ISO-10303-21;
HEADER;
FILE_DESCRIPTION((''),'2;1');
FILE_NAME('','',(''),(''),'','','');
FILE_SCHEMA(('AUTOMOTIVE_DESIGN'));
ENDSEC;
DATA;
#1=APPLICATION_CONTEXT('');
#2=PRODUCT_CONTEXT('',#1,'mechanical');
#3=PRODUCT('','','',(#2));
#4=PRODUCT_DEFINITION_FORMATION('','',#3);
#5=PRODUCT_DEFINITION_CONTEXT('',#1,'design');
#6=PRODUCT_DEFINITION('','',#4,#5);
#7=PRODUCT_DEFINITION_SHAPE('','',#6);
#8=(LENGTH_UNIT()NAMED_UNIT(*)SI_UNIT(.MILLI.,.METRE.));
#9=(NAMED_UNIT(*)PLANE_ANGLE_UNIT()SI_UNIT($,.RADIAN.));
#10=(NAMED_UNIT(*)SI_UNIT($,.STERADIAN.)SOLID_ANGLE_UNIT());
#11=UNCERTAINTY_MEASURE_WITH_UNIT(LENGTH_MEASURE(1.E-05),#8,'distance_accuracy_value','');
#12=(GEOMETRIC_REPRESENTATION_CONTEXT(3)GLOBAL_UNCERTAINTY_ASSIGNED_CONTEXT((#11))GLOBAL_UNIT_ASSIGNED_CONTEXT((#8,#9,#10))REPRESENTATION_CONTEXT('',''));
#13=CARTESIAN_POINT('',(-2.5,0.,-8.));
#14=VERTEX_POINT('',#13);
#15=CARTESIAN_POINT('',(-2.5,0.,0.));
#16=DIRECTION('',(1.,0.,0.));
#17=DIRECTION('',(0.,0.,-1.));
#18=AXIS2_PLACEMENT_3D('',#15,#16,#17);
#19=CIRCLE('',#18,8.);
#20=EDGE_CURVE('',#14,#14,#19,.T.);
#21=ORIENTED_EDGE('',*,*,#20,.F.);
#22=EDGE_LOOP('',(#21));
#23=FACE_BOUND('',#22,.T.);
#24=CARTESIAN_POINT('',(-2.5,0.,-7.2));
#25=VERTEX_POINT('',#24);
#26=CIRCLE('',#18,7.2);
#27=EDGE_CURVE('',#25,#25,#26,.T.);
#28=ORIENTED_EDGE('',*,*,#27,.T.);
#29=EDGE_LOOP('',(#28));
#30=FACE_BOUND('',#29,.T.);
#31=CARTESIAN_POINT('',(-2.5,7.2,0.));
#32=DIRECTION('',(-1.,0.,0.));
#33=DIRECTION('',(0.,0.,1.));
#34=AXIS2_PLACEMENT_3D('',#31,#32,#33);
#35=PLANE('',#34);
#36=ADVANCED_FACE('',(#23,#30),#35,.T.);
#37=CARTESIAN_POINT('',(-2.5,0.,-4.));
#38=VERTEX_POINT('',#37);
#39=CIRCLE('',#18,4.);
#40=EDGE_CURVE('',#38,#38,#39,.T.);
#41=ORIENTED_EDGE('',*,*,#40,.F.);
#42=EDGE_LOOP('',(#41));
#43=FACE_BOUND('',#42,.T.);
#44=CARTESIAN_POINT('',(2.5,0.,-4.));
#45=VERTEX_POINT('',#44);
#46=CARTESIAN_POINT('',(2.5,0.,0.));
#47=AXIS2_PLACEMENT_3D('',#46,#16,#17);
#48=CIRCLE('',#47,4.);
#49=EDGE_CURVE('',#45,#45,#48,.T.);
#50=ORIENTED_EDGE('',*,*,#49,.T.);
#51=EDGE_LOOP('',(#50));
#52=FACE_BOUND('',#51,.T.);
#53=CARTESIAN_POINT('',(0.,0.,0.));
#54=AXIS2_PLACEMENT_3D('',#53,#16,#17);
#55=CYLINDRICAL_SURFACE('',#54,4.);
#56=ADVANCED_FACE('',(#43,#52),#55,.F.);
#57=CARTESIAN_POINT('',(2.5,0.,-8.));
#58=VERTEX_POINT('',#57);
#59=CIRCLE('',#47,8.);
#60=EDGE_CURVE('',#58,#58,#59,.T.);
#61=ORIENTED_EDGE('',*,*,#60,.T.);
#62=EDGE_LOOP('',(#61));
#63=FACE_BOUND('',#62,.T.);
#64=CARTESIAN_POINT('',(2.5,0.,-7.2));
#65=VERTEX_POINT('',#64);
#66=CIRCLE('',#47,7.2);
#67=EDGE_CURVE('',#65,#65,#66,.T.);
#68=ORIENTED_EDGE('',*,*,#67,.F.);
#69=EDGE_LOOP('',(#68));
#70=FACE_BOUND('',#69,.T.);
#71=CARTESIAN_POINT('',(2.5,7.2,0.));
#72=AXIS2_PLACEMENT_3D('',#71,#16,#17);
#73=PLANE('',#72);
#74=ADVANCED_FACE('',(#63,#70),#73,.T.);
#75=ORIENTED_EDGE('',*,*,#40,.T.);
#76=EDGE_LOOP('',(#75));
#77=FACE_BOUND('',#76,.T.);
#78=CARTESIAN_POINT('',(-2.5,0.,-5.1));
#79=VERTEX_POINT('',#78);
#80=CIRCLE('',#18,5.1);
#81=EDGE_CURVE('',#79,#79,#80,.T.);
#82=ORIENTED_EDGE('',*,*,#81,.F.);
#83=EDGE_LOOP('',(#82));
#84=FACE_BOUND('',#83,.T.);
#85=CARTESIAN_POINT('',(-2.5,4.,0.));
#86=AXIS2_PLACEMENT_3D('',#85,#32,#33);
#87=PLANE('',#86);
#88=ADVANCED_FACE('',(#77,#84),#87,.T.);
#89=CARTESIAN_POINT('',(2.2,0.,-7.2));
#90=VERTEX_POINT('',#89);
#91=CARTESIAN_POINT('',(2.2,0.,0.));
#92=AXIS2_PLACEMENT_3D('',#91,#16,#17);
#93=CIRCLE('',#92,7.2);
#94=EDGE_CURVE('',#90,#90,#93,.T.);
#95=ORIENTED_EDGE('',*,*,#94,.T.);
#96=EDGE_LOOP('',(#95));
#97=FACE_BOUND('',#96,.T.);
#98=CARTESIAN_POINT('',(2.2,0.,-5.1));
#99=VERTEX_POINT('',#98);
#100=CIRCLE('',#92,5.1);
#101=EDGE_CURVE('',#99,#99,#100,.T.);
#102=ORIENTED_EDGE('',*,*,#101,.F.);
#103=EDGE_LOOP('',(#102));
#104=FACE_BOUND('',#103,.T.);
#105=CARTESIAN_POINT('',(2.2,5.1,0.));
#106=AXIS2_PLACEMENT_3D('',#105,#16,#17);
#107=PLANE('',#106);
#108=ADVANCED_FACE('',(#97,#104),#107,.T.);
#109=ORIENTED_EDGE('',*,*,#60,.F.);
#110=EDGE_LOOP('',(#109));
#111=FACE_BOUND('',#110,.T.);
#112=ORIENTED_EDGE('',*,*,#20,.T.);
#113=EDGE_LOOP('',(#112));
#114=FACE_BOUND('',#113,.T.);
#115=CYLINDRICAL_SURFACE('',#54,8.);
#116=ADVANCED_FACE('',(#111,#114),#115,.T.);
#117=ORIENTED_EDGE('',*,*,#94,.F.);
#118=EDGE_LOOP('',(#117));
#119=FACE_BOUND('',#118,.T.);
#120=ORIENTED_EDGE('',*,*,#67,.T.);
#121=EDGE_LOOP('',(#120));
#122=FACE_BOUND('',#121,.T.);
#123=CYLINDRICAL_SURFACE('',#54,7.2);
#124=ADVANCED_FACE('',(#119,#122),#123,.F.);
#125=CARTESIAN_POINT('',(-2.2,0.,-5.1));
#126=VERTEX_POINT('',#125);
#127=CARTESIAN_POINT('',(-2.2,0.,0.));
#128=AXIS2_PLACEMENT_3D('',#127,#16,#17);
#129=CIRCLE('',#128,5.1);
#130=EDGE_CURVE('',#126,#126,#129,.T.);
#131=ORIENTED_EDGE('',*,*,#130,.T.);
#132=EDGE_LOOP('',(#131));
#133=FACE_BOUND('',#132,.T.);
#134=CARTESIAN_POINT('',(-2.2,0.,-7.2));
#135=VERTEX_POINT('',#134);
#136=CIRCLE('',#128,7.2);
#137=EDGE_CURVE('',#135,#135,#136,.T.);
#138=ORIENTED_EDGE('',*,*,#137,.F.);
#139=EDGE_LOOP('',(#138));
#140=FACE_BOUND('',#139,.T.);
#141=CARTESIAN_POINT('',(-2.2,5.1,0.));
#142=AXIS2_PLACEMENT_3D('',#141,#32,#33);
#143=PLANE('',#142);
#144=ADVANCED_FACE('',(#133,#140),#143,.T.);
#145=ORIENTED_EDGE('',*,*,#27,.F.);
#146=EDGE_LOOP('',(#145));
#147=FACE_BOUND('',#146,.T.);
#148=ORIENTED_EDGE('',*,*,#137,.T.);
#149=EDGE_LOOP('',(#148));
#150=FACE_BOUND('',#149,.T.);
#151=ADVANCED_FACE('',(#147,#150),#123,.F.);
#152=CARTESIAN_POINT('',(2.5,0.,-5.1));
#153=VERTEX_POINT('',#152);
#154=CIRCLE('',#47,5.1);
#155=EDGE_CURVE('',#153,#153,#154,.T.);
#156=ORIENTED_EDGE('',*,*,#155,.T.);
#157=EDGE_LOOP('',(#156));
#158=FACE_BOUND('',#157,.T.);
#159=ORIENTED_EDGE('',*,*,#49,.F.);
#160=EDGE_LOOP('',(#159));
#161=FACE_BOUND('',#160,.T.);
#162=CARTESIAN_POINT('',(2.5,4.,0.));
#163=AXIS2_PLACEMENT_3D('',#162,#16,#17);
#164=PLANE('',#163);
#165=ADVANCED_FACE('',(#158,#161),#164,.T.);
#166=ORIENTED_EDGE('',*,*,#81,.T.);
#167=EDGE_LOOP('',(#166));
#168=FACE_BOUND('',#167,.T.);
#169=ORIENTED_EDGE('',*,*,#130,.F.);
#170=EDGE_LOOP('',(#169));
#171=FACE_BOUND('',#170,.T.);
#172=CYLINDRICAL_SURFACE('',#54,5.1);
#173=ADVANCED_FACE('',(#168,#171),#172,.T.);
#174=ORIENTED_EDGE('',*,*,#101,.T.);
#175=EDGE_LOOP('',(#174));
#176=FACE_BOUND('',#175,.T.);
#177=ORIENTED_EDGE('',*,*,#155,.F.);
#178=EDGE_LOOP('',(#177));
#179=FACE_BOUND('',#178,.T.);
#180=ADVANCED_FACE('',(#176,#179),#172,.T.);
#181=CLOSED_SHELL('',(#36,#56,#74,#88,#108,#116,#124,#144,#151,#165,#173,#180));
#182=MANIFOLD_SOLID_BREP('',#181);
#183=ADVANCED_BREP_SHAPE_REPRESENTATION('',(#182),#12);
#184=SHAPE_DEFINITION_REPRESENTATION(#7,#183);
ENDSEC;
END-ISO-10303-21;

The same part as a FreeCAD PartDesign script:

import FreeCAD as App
import Part
import Sketcher

doc = App.newDocument("Part")
body = doc.addObject("PartDesign::Body", "Body")

sketch1 = body.newObject("Sketcher::SketchObject", "Sketch")
sketch1.AttachmentSupport = (doc.getObject("XY_Plane"), [""])
sketch1.MapMode = "FlatFace"
sketch1.addGeometry(Part.LineSegment(App.Vector(-2.5, 4, 0), App.Vector(2.5, 4, 0)), False)
sketch1.addGeometry(Part.LineSegment(App.Vector(2.5, 4, 0), App.Vector(2.5, 5.1, 0)), False)
sketch1.addGeometry(Part.LineSegment(App.Vector(2.5, 5.1, 0), App.Vector(2.2, 5.1, 0)), False)
sketch1.addGeometry(Part.LineSegment(App.Vector(2.2, 5.1, 0), App.Vector(2.2, 7.2, 0)), False)
sketch1.addGeometry(Part.LineSegment(App.Vector(2.2, 7.2, 0), App.Vector(2.5, 7.2, 0)), False)
sketch1.addGeometry(Part.LineSegment(App.Vector(2.5, 7.2, 0), App.Vector(2.5, 8, 0)), False)
sketch1.addGeometry(Part.LineSegment(App.Vector(2.5, 8, 0), App.Vector(-2.5, 8, 0)), False)
sketch1.addGeometry(Part.LineSegment(App.Vector(-2.5, 8, 0), App.Vector(-2.5, 7.2, 0)), False)
sketch1.addGeometry(Part.LineSegment(App.Vector(-2.5, 7.2, 0), App.Vector(-2.2, 7.2, 0)), False)
sketch1.addGeometry(Part.LineSegment(App.Vector(-2.2, 7.2, 0), App.Vector(-2.2, 5.1, 0)), False)
sketch1.addGeometry(Part.LineSegment(App.Vector(-2.2, 5.1, 0), App.Vector(-2.5, 5.1, 0)), False)
sketch1.addGeometry(Part.LineSegment(App.Vector(-2.5, 5.1, 0), App.Vector(-2.5, 4, 0)), False)
sketch1.addConstraint(Sketcher.Constraint("Coincident", 0, 2, 1, 1))
sketch1.addConstraint(Sketcher.Constraint("Coincident", 1, 2, 2, 1))
sketch1.addConstraint(Sketcher.Constraint("Coincident", 2, 2, 3, 1))
sketch1.addConstraint(Sketcher.Constraint("Coincident", 3, 2, 4, 1))
sketch1.addConstraint(Sketcher.Constraint("Coincident", 4, 2, 5, 1))
sketch1.addConstraint(Sketcher.Constraint("Coincident", 5, 2, 6, 1))
sketch1.addConstraint(Sketcher.Constraint("Coincident", 6, 2, 7, 1))
sketch1.addConstraint(Sketcher.Constraint("Coincident", 7, 2, 8, 1))
sketch1.addConstraint(Sketcher.Constraint("Coincident", 8, 2, 9, 1))
sketch1.addConstraint(Sketcher.Constraint("Coincident", 9, 2, 10, 1))
sketch1.addConstraint(Sketcher.Constraint("Coincident", 10, 2, 11, 1))
sketch1.addConstraint(Sketcher.Constraint("Coincident", 11, 2, 0, 1))
sketch1.addConstraint(Sketcher.Constraint("Horizontal", 0))
sketch1.addConstraint(Sketcher.Constraint("Vertical", 1))
sketch1.addConstraint(Sketcher.Constraint("Horizontal", 2))
sketch1.addConstraint(Sketcher.Constraint("Vertical", 3))
sketch1.addConstraint(Sketcher.Constraint("Horizontal", 4))
sketch1.addConstraint(Sketcher.Constraint("Vertical", 5))
sketch1.addConstraint(Sketcher.Constraint("Horizontal", 6))
sketch1.addConstraint(Sketcher.Constraint("Vertical", 7))
sketch1.addConstraint(Sketcher.Constraint("Horizontal", 8))
sketch1.addConstraint(Sketcher.Constraint("Vertical", 9))
sketch1.addConstraint(Sketcher.Constraint("Horizontal", 10))
sketch1.addConstraint(Sketcher.Constraint("Vertical", 11))
sketch1.addConstraint(Sketcher.Constraint("Symmetric", 4, 2, 7, 2, -2))
sketch1.addConstraint(Sketcher.Constraint("Symmetric", 2, 2, 9, 2, -2))
sketch1.addConstraint(Sketcher.Constraint("Vertical", 1, 2, 4, 2))
sketch1.addConstraint(Sketcher.Constraint("Vertical", 7, 2, 10, 2))
sketch1.addConstraint(Sketcher.Constraint("DistanceX", 0, 1, 0, 2, 5.0))
sketch1.addConstraint(Sketcher.Constraint("DistanceX", 2, 2, 2, 1, 0.3))
sketch1.addConstraint(Sketcher.Constraint("DistanceY", 1, 1, 1, 2, 1.1))
sketch1.addConstraint(Sketcher.Constraint("DistanceY", 3, 1, 3, 2, 2.1))
sketch1.addConstraint(Sketcher.Constraint("DistanceY", 5, 1, 5, 2, 0.8))
sketch1.addConstraint(Sketcher.Constraint("DistanceY", -1, 1, 0, 2, 4.0))
revolution = body.newObject("PartDesign::Revolution", "Revolution")
revolution.Profile = sketch1
revolution.ReferenceAxis = (sketch1, ["H_Axis"])
revolution.Angle = 360

doc.recompute()
